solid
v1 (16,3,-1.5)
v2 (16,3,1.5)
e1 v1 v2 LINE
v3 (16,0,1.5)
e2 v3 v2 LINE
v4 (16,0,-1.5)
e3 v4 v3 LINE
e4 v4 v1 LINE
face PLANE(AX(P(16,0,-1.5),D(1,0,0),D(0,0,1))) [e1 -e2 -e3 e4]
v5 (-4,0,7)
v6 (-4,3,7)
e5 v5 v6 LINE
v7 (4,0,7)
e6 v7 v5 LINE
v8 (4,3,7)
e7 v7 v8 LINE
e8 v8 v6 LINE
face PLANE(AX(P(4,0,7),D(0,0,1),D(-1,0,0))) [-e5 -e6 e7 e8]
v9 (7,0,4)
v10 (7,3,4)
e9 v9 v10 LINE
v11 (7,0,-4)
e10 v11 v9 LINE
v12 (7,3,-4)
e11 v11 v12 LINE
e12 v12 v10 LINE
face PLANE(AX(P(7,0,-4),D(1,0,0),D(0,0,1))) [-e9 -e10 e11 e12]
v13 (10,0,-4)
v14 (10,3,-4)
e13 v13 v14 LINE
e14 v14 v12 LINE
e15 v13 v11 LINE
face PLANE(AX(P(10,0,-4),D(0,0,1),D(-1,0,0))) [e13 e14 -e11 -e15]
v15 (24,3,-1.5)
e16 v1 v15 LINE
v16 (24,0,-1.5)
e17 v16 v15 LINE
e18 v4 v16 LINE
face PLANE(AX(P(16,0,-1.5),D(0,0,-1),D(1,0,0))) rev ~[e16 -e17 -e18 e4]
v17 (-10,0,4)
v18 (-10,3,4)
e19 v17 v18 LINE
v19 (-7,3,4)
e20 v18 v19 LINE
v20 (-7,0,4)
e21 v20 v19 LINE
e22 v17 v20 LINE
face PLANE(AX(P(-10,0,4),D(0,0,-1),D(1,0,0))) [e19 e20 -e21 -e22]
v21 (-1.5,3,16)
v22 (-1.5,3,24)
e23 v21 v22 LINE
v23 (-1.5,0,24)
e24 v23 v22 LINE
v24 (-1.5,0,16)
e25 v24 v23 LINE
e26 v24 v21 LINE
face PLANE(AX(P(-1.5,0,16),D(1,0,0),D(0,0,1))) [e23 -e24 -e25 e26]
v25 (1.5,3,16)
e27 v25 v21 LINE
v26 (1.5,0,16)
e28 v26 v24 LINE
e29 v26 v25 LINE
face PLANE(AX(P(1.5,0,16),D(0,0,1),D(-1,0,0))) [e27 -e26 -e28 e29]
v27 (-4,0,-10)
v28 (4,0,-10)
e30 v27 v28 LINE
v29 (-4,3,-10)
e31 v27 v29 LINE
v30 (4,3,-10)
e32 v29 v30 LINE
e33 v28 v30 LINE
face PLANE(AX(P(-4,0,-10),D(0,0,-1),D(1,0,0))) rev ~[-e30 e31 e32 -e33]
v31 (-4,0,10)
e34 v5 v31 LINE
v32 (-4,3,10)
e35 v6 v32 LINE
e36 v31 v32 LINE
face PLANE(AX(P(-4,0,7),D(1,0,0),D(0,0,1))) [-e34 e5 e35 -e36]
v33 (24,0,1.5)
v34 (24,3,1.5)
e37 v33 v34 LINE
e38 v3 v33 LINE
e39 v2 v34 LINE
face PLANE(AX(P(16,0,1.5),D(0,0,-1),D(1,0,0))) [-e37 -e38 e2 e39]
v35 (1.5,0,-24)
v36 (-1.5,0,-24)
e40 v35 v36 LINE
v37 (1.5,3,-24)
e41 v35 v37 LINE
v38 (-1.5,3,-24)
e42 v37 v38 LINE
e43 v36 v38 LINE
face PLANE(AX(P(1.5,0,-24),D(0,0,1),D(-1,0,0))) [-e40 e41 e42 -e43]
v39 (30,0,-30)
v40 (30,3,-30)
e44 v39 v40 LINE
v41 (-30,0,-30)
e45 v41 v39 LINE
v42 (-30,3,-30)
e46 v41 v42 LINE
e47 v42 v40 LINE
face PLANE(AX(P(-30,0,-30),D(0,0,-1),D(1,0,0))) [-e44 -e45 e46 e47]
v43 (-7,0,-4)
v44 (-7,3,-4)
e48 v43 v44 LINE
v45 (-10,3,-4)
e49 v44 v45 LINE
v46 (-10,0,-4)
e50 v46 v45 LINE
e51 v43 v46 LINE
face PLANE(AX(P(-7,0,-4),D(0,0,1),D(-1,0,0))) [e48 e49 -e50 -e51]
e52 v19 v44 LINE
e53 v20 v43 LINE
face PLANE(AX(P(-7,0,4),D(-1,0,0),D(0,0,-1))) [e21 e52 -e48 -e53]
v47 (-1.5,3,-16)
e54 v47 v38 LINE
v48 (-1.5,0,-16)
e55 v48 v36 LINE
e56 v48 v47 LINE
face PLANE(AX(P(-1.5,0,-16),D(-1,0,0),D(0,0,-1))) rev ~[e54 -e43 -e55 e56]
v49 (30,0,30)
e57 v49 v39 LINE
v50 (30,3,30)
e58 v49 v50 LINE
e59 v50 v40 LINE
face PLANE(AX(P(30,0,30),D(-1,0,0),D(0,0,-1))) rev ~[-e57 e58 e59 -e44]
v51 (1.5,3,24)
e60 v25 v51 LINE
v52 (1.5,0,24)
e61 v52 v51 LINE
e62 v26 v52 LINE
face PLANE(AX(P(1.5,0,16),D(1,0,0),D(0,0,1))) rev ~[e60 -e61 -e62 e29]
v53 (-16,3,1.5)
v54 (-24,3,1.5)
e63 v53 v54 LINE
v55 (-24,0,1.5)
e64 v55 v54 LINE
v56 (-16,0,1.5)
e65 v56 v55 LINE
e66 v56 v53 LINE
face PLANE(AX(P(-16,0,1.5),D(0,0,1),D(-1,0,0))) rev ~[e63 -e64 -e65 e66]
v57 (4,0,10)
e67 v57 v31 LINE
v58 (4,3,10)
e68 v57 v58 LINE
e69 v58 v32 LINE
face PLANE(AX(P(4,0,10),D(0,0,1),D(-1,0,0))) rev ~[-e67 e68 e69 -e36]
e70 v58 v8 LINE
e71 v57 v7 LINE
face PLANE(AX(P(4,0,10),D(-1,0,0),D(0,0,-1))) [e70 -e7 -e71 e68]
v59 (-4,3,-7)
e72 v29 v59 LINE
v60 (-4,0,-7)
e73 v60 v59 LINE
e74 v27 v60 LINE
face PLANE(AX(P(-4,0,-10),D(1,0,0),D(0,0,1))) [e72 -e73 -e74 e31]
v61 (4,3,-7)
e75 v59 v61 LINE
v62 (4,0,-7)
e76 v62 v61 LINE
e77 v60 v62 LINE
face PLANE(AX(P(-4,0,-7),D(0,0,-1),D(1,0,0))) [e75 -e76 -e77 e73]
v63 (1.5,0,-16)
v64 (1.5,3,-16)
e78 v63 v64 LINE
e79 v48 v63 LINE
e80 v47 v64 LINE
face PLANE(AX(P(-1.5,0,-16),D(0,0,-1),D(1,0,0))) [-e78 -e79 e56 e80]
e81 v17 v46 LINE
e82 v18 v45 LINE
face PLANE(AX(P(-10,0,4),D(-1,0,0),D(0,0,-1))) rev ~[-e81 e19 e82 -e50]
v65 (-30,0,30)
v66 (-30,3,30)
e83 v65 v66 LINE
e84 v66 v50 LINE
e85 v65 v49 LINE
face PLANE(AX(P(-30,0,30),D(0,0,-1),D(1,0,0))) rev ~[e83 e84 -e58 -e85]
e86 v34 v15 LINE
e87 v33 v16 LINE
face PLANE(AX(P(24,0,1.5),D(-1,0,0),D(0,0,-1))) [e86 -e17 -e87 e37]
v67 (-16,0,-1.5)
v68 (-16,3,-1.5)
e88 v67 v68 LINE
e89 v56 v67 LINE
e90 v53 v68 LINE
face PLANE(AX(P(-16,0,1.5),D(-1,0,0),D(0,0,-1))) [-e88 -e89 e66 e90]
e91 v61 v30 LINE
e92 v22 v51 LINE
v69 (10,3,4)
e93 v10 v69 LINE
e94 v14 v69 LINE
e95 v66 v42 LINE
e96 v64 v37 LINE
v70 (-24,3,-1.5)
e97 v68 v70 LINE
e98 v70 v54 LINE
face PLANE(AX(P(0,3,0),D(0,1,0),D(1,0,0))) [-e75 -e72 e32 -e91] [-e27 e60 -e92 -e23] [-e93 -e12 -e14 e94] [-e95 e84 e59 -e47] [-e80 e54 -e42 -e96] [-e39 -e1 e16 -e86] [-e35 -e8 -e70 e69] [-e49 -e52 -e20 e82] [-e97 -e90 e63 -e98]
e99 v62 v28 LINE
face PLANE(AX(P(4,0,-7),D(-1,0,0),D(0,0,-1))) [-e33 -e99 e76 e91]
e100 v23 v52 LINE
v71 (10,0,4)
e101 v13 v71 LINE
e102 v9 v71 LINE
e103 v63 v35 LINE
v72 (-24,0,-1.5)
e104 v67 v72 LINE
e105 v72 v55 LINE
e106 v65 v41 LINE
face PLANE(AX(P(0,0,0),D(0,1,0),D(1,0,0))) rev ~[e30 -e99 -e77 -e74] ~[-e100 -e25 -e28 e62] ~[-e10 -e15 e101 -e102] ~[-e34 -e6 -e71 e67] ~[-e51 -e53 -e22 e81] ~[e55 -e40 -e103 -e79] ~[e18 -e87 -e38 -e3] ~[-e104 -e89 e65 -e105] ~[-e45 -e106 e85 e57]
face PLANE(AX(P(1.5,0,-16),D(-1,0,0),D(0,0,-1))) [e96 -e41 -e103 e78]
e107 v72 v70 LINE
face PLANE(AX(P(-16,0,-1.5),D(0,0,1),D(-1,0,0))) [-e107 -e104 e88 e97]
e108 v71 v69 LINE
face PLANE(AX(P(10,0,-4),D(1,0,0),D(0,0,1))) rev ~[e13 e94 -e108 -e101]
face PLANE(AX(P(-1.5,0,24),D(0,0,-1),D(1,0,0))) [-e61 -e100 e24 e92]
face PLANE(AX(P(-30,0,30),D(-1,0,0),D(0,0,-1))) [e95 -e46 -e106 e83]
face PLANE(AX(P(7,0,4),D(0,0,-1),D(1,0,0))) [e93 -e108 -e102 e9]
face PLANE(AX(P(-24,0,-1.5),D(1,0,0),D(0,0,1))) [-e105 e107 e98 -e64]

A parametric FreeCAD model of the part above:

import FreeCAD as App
import Part
import Sketcher
Q = App.Units.Quantity


def add_polygon(sketch, points):
    """Adds a closed chain of lines whose ends are joined by coincident constraints."""
    first, n = sketch.GeometryCount, len(points)
    for a, b in zip(points, points[1:] + points[:1]):
        sketch.addGeometry(Part.LineSegment(App.Vector(*a, 0), App.Vector(*b, 0)), False)
    for i in range(n):
        sketch.addConstraint(Sketcher.Constraint("Coincident", first + i, 2, first + (i + 1) % n, 1))

doc = App.newDocument("Part")
body = doc.addObject("PartDesign::Body", "Body")

sketch1 = body.newObject("Sketcher::SketchObject", "Sketch")
sketch1.AttachmentSupport = (doc.getObject("XZ_Plane"), [""])
sketch1.MapMode = "FlatFace"
add_polygon(sketch1, [(-30, -30), (-30, 30), (30, 30), (30, -30)])
add_polygon(sketch1, [(1.5, 16), (1.5, 24), (-1.5, 24), (-1.5, 16)])
add_polygon(sketch1, [(-4, 7), (4, 7), (4, 10), (-4, 10)])
add_polygon(sketch1, [(-16, 1.5), (-24, 1.5), (-24, -1.5), (-16, -1.5)])
add_polygon(sketch1, [(-7, -4), (-7, 4), (-10, 4), (-10, -4)])
add_polygon(sketch1, [(7, 4), (7, -4), (10, -4), (10, 4)])
add_polygon(sketch1, [(-4, -10), (4, -10), (4, -7), (-4, -7)])
add_polygon(sketch1, [(16, -1.5), (24, -1.5), (24, 1.5), (16, 1.5)])
add_polygon(sketch1, [(-1.5, -16), (-1.5, -24), (1.5, -24), (1.5, -16)])
sketch1.addConstraint([
    Sketcher.Constraint("Vertical", 0),
    Sketcher.Constraint("Horizontal", 1),
    Sketcher.Constraint("Vertical", 2),
    Sketcher.Constraint("Horizontal", 3),
    Sketcher.Constraint("Vertical", 4),
    Sketcher.Constraint("Horizontal", 5),
    Sketcher.Constraint("Vertical", 6),
    Sketcher.Constraint("Horizontal", 7),
    Sketcher.Constraint("Horizontal", 8),
    Sketcher.Constraint("Vertical", 9),
    Sketcher.Constraint("Horizontal", 10),
    Sketcher.Constraint("Vertical", 11),
    Sketcher.Constraint("Horizontal", 12),
    Sketcher.Constraint("Vertical", 13),
    Sketcher.Constraint("Horizontal", 14),
    Sketcher.Constraint("Vertical", 15),
    Sketcher.Constraint("Vertical", 16),
    Sketcher.Constraint("Horizontal", 17),
    Sketcher.Constraint("Vertical", 18),
    Sketcher.Constraint("Horizontal", 19),
    Sketcher.Constraint("Vertical", 20),
    Sketcher.Constraint("Horizontal", 21),
    Sketcher.Constraint("Vertical", 22),
    Sketcher.Constraint("Horizontal", 23),
    Sketcher.Constraint("Horizontal", 24),
    Sketcher.Constraint("Vertical", 25),
    Sketcher.Constraint("Horizontal", 26),
    Sketcher.Constraint("Vertical", 27),
    Sketcher.Constraint("Horizontal", 28),
    Sketcher.Constraint("Vertical", 29),
    Sketcher.Constraint("Horizontal", 30),
    Sketcher.Constraint("Vertical", 31),
    Sketcher.Constraint("Vertical", 32),
    Sketcher.Constraint("Horizontal", 33),
    Sketcher.Constraint("Vertical", 34),
    Sketcher.Constraint("Horizontal", 35),
    Sketcher.Constraint("Symmetric", 0, 2, 2, 2, -1, 1),
    Sketcher.Constraint("Symmetric", 16, 2, 20, 2, -1, 1),
    Sketcher.Constraint("Symmetric", 18, 2, 22, 2, -1, 1),
    Sketcher.Constraint("Symmetric", 10, 2, 24, 2, -1, 1),
    Sketcher.Constraint("Symmetric", 8, 2, 26, 2, -1, 1),
    Sketcher.Constraint("Symmetric", 12, 2, 28, 2, -1, 1),
    Sketcher.Constraint("Symmetric", 14, 2, 30, 2, -1, 1),
    Sketcher.Constraint("Symmetric", 4, 2, 32, 2, -1, 1),
    Sketcher.Constraint("Symmetric", 6, 2, 34, 2, -1, 1),
    Sketcher.Constraint("Horizontal", 19, 2, 20, 2),
    Sketcher.Constraint("Horizontal", 14, 2, 28, 2),
    Sketcher.Constraint("Vertical", 9, 2, 24, 2),
    Sketcher.Constraint("Vertical", 6, 2, 32, 2),
    Sketcher.Constraint("Equal", 10, 12),
    Sketcher.Constraint("Equal", 7, 17),
    Sketcher.Constraint("Equal", 3, 0),
    Sketcher.Constraint("Equal", 30, 4),
    Sketcher.Constraint("Equal", 35, 9),
    Sketcher.Constraint("Equal", 11, 13),
    Sketcher.Constraint("Equal", 6, 16),
    Sketcher.Constraint("DistanceX", 1, 1, 1, 2, Q("60 mm")),
    Sketcher.Constraint("DistanceX", 5, 2, 5, 1, Q("3 mm")),
    Sketcher.Constraint("DistanceX", 8, 1, 8, 2, Q("8 mm")),
    Sketcher.Constraint("DistanceY", -1, 1, 4, 2, Q("24 mm")),
    Sketcher.Constraint("DistanceY", -1, 1, 8, 2, Q("7 mm")),
    Sketcher.Constraint("DistanceX", 12, 2, -1, 1, Q("24 mm")),
    Sketcher.Constraint("DistanceX", 16, 2, -1, 1, Q("7 mm")),
])
pad1 = body.newObject("PartDesign::Pad", "Pad")
pad1.Profile = sketch1
pad1.Length = 3
pad1.Reversed = True

doc.recompute()
